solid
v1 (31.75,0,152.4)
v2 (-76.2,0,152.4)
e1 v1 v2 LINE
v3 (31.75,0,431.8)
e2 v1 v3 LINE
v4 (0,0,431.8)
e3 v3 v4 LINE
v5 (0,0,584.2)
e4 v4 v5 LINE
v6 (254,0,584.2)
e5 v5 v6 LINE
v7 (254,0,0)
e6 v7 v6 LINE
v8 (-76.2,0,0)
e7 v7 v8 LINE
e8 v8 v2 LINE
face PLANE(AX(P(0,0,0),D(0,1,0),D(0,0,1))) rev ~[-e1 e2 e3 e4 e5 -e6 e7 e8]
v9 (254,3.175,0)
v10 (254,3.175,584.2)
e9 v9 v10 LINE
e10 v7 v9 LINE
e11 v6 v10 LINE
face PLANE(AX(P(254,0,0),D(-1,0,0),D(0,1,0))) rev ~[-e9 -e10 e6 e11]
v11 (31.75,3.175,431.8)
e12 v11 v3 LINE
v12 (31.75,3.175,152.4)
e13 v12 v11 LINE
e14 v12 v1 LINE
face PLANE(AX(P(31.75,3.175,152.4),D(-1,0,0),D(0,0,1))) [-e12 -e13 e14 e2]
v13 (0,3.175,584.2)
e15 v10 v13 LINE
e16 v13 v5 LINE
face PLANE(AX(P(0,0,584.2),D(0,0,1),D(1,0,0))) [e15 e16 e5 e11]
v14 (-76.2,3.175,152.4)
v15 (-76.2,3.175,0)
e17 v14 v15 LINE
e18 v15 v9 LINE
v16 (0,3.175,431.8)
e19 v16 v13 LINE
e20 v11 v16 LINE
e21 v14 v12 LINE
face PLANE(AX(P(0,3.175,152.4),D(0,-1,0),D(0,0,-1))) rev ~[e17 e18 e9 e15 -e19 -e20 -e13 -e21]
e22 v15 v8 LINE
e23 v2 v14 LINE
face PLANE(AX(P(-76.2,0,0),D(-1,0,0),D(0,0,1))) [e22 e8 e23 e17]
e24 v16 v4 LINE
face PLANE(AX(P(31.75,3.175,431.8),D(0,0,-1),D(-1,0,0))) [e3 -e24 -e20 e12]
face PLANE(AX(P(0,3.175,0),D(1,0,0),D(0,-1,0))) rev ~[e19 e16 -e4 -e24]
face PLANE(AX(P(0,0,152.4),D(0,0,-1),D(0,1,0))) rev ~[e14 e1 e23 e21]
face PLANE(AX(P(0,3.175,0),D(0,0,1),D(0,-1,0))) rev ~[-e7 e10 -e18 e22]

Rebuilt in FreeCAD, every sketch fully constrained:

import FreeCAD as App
import Part
import Sketcher
from FreeCAD import Vector
Q = App.Units.Quantity

doc = App.newDocument("Part")
body = doc.addObject("PartDesign::Body", "Body")

# Sketch on XY plane
sketch1 = doc.addObject("Sketcher::SketchObject", "Sketch")
body.addObject(sketch1)
sketch1.AttachmentSupport = (doc.XY_Plane, [""])
sketch1.MapMode = "FlatFace"
sketch1.addGeometry(Part.LineSegment(Vector(0, 3.2, 0), Vector(0, 0, 0)), False)
sketch1.addGeometry(Part.LineSegment(Vector(0, 0, 0), Vector(254, 0, 0)), False)
sketch1.addGeometry(Part.LineSegment(Vector(254, 0, 0), Vector(254, 3.2, 0)), False)
sketch1.addGeometry(Part.LineSegment(Vector(254, 3.2, 0), Vector(0, 3.2, 0)), False)
sketch1.addConstraint(Sketcher.Constraint("Coincident", 0, 2, 1, 1))
sketch1.addConstraint(Sketcher.Constraint("Coincident", 1, 2, 2, 1))
sketch1.addConstraint(Sketcher.Constraint("Coincident", 2, 2, 3, 1))
sketch1.addConstraint(Sketcher.Constraint("Coincident", 3, 2, 0, 1))
sketch1.addConstraint(Sketcher.Constraint("Vertical", 0))
sketch1.addConstraint(Sketcher.Constraint("Horizontal", 1))
sketch1.addConstraint(Sketcher.Constraint("Vertical", 2))
sketch1.addConstraint(Sketcher.Constraint("Horizontal", 3))
sketch1.addConstraint(Sketcher.Constraint("Coincident", 0, 2, -1, 1))
sketch1.addConstraint(Sketcher.Constraint("DistanceX", 1, 1, 1, 2, Q("10 in")))
sketch1.addConstraint(Sketcher.Constraint("DistanceY", 0, 2, 0, 1, Q("0.125 in")))
pad1 = doc.addObject("PartDesign::Pad", "Pad")
body.addObject(pad1)
pad1.Profile = sketch1
pad1.Length = Q("23 in")

# Sketch on XZ plane
sketch2 = doc.addObject("Sketcher::SketchObject", "Sketch001")
body.addObject(sketch2)
sketch2.AttachmentSupport = (doc.XZ_Plane, [""])
sketch2.MapMode = "FlatFace"
sketch2.AttachmentOffset = App.Placement(Vector(0, 0, -0.125 * 25.4), App.Rotation())
sketch2.addGeometry(Part.LineSegment(Vector(32, 152, 0), Vector(0, 152, 0)), False)
sketch2.addGeometry(Part.LineSegment(Vector(0, 152, 0), Vector(0, 432, 0)), False)
sketch2.addGeometry(Part.LineSegment(Vector(0, 432, 0), Vector(32, 432, 0)), False)
sketch2.addGeometry(Part.LineSegment(Vector(32, 432, 0), Vector(32, 152, 0)), False)
sketch2.addConstraint(Sketcher.Constraint("Coincident", 0, 2, 1, 1))
sketch2.addConstraint(Sketcher.Constraint("Coincident", 1, 2, 2, 1))
sketch2.addConstraint(Sketcher.Constraint("Coincident", 2, 2, 3, 1))
sketch2.addConstraint(Sketcher.Constraint("Coincident", 3, 2, 0, 1))
sketch2.addConstraint(Sketcher.Constraint("Horizontal", 0))
sketch2.addConstraint(Sketcher.Constraint("Vertical", 1))
sketch2.addConstraint(Sketcher.Constraint("Horizontal", 2))
sketch2.addConstraint(Sketcher.Constraint("Vertical", 3))
sketch2.addConstraint(Sketcher.Constraint("PointOnObject", 0, 2, -2))
sketch2.addConstraint(Sketcher.Constraint("DistanceY", 1, 1, 1, 2, Q("11 in")))
sketch2.addConstraint(Sketcher.Constraint("DistanceX", 0, 2, 0, 1, Q("1.25 in")))
sketch2.addConstraint(Sketcher.Constraint("DistanceY", -1, 1, 0, 2, Q("6 in")))
pocket1 = doc.addObject("PartDesign::Pocket", "Pocket")
body.addObject(pocket1)
pocket1.Profile = sketch2
pocket1.Type = "ThroughAll"
pocket1.Reversed = True

# Sketch on YZ plane
sketch3 = doc.addObject("Sketcher::SketchObject", "Sketch002")
body.addObject(sketch3)
sketch3.AttachmentSupport = (doc.YZ_Plane, [""])
sketch3.MapMode = "FlatFace"
sketch3.addGeometry(Part.LineSegment(Vector(3.2, 0, 0), Vector(0, 0, 0)), False)
sketch3.addGeometry(Part.LineSegment(Vector(0, 0, 0), Vector(0, 152.4, 0)), False)
sketch3.addGeometry(Part.LineSegment(Vector(0, 152.4, 0), Vector(3.2, 152.4, 0)), False)
sketch3.addGeometry(Part.LineSegment(Vector(3.2, 152.4, 0), Vector(3.2, 0, 0)), False)
sketch3.addConstraint(Sketcher.Constraint("Coincident", 0, 2, 1, 1))
sketch3.addConstraint(Sketcher.Constraint("Coincident", 1, 2, 2, 1))
sketch3.addConstraint(Sketcher.Constraint("Coincident", 2, 2, 3, 1))
sketch3.addConstraint(Sketcher.Constraint("Coincident", 3, 2, 0, 1))
sketch3.addConstraint(Sketcher.Constraint("Horizontal", 0))
sketch3.addConstraint(Sketcher.Constraint("Vertical", 1))
sketch3.addConstraint(Sketcher.Constraint("Horizontal", 2))
sketch3.addConstraint(Sketcher.Constraint("Vertical", 3))
sketch3.addConstraint(Sketcher.Constraint("Coincident", 0, 2, -1, 1))
sketch3.addConstraint(Sketcher.Constraint("DistanceY", 1, 1, 1, 2, Q("6 in")))
sketch3.addConstraint(Sketcher.Constraint("DistanceX", 0, 2, 0, 1, Q("0.125 in")))
pad2 = doc.addObject("PartDesign::Pad", "Pad001")
body.addObject(pad2)
pad2.Profile = sketch3
pad2.Length = Q("3 in")
pad2.Reversed = True

doc.recompute()
